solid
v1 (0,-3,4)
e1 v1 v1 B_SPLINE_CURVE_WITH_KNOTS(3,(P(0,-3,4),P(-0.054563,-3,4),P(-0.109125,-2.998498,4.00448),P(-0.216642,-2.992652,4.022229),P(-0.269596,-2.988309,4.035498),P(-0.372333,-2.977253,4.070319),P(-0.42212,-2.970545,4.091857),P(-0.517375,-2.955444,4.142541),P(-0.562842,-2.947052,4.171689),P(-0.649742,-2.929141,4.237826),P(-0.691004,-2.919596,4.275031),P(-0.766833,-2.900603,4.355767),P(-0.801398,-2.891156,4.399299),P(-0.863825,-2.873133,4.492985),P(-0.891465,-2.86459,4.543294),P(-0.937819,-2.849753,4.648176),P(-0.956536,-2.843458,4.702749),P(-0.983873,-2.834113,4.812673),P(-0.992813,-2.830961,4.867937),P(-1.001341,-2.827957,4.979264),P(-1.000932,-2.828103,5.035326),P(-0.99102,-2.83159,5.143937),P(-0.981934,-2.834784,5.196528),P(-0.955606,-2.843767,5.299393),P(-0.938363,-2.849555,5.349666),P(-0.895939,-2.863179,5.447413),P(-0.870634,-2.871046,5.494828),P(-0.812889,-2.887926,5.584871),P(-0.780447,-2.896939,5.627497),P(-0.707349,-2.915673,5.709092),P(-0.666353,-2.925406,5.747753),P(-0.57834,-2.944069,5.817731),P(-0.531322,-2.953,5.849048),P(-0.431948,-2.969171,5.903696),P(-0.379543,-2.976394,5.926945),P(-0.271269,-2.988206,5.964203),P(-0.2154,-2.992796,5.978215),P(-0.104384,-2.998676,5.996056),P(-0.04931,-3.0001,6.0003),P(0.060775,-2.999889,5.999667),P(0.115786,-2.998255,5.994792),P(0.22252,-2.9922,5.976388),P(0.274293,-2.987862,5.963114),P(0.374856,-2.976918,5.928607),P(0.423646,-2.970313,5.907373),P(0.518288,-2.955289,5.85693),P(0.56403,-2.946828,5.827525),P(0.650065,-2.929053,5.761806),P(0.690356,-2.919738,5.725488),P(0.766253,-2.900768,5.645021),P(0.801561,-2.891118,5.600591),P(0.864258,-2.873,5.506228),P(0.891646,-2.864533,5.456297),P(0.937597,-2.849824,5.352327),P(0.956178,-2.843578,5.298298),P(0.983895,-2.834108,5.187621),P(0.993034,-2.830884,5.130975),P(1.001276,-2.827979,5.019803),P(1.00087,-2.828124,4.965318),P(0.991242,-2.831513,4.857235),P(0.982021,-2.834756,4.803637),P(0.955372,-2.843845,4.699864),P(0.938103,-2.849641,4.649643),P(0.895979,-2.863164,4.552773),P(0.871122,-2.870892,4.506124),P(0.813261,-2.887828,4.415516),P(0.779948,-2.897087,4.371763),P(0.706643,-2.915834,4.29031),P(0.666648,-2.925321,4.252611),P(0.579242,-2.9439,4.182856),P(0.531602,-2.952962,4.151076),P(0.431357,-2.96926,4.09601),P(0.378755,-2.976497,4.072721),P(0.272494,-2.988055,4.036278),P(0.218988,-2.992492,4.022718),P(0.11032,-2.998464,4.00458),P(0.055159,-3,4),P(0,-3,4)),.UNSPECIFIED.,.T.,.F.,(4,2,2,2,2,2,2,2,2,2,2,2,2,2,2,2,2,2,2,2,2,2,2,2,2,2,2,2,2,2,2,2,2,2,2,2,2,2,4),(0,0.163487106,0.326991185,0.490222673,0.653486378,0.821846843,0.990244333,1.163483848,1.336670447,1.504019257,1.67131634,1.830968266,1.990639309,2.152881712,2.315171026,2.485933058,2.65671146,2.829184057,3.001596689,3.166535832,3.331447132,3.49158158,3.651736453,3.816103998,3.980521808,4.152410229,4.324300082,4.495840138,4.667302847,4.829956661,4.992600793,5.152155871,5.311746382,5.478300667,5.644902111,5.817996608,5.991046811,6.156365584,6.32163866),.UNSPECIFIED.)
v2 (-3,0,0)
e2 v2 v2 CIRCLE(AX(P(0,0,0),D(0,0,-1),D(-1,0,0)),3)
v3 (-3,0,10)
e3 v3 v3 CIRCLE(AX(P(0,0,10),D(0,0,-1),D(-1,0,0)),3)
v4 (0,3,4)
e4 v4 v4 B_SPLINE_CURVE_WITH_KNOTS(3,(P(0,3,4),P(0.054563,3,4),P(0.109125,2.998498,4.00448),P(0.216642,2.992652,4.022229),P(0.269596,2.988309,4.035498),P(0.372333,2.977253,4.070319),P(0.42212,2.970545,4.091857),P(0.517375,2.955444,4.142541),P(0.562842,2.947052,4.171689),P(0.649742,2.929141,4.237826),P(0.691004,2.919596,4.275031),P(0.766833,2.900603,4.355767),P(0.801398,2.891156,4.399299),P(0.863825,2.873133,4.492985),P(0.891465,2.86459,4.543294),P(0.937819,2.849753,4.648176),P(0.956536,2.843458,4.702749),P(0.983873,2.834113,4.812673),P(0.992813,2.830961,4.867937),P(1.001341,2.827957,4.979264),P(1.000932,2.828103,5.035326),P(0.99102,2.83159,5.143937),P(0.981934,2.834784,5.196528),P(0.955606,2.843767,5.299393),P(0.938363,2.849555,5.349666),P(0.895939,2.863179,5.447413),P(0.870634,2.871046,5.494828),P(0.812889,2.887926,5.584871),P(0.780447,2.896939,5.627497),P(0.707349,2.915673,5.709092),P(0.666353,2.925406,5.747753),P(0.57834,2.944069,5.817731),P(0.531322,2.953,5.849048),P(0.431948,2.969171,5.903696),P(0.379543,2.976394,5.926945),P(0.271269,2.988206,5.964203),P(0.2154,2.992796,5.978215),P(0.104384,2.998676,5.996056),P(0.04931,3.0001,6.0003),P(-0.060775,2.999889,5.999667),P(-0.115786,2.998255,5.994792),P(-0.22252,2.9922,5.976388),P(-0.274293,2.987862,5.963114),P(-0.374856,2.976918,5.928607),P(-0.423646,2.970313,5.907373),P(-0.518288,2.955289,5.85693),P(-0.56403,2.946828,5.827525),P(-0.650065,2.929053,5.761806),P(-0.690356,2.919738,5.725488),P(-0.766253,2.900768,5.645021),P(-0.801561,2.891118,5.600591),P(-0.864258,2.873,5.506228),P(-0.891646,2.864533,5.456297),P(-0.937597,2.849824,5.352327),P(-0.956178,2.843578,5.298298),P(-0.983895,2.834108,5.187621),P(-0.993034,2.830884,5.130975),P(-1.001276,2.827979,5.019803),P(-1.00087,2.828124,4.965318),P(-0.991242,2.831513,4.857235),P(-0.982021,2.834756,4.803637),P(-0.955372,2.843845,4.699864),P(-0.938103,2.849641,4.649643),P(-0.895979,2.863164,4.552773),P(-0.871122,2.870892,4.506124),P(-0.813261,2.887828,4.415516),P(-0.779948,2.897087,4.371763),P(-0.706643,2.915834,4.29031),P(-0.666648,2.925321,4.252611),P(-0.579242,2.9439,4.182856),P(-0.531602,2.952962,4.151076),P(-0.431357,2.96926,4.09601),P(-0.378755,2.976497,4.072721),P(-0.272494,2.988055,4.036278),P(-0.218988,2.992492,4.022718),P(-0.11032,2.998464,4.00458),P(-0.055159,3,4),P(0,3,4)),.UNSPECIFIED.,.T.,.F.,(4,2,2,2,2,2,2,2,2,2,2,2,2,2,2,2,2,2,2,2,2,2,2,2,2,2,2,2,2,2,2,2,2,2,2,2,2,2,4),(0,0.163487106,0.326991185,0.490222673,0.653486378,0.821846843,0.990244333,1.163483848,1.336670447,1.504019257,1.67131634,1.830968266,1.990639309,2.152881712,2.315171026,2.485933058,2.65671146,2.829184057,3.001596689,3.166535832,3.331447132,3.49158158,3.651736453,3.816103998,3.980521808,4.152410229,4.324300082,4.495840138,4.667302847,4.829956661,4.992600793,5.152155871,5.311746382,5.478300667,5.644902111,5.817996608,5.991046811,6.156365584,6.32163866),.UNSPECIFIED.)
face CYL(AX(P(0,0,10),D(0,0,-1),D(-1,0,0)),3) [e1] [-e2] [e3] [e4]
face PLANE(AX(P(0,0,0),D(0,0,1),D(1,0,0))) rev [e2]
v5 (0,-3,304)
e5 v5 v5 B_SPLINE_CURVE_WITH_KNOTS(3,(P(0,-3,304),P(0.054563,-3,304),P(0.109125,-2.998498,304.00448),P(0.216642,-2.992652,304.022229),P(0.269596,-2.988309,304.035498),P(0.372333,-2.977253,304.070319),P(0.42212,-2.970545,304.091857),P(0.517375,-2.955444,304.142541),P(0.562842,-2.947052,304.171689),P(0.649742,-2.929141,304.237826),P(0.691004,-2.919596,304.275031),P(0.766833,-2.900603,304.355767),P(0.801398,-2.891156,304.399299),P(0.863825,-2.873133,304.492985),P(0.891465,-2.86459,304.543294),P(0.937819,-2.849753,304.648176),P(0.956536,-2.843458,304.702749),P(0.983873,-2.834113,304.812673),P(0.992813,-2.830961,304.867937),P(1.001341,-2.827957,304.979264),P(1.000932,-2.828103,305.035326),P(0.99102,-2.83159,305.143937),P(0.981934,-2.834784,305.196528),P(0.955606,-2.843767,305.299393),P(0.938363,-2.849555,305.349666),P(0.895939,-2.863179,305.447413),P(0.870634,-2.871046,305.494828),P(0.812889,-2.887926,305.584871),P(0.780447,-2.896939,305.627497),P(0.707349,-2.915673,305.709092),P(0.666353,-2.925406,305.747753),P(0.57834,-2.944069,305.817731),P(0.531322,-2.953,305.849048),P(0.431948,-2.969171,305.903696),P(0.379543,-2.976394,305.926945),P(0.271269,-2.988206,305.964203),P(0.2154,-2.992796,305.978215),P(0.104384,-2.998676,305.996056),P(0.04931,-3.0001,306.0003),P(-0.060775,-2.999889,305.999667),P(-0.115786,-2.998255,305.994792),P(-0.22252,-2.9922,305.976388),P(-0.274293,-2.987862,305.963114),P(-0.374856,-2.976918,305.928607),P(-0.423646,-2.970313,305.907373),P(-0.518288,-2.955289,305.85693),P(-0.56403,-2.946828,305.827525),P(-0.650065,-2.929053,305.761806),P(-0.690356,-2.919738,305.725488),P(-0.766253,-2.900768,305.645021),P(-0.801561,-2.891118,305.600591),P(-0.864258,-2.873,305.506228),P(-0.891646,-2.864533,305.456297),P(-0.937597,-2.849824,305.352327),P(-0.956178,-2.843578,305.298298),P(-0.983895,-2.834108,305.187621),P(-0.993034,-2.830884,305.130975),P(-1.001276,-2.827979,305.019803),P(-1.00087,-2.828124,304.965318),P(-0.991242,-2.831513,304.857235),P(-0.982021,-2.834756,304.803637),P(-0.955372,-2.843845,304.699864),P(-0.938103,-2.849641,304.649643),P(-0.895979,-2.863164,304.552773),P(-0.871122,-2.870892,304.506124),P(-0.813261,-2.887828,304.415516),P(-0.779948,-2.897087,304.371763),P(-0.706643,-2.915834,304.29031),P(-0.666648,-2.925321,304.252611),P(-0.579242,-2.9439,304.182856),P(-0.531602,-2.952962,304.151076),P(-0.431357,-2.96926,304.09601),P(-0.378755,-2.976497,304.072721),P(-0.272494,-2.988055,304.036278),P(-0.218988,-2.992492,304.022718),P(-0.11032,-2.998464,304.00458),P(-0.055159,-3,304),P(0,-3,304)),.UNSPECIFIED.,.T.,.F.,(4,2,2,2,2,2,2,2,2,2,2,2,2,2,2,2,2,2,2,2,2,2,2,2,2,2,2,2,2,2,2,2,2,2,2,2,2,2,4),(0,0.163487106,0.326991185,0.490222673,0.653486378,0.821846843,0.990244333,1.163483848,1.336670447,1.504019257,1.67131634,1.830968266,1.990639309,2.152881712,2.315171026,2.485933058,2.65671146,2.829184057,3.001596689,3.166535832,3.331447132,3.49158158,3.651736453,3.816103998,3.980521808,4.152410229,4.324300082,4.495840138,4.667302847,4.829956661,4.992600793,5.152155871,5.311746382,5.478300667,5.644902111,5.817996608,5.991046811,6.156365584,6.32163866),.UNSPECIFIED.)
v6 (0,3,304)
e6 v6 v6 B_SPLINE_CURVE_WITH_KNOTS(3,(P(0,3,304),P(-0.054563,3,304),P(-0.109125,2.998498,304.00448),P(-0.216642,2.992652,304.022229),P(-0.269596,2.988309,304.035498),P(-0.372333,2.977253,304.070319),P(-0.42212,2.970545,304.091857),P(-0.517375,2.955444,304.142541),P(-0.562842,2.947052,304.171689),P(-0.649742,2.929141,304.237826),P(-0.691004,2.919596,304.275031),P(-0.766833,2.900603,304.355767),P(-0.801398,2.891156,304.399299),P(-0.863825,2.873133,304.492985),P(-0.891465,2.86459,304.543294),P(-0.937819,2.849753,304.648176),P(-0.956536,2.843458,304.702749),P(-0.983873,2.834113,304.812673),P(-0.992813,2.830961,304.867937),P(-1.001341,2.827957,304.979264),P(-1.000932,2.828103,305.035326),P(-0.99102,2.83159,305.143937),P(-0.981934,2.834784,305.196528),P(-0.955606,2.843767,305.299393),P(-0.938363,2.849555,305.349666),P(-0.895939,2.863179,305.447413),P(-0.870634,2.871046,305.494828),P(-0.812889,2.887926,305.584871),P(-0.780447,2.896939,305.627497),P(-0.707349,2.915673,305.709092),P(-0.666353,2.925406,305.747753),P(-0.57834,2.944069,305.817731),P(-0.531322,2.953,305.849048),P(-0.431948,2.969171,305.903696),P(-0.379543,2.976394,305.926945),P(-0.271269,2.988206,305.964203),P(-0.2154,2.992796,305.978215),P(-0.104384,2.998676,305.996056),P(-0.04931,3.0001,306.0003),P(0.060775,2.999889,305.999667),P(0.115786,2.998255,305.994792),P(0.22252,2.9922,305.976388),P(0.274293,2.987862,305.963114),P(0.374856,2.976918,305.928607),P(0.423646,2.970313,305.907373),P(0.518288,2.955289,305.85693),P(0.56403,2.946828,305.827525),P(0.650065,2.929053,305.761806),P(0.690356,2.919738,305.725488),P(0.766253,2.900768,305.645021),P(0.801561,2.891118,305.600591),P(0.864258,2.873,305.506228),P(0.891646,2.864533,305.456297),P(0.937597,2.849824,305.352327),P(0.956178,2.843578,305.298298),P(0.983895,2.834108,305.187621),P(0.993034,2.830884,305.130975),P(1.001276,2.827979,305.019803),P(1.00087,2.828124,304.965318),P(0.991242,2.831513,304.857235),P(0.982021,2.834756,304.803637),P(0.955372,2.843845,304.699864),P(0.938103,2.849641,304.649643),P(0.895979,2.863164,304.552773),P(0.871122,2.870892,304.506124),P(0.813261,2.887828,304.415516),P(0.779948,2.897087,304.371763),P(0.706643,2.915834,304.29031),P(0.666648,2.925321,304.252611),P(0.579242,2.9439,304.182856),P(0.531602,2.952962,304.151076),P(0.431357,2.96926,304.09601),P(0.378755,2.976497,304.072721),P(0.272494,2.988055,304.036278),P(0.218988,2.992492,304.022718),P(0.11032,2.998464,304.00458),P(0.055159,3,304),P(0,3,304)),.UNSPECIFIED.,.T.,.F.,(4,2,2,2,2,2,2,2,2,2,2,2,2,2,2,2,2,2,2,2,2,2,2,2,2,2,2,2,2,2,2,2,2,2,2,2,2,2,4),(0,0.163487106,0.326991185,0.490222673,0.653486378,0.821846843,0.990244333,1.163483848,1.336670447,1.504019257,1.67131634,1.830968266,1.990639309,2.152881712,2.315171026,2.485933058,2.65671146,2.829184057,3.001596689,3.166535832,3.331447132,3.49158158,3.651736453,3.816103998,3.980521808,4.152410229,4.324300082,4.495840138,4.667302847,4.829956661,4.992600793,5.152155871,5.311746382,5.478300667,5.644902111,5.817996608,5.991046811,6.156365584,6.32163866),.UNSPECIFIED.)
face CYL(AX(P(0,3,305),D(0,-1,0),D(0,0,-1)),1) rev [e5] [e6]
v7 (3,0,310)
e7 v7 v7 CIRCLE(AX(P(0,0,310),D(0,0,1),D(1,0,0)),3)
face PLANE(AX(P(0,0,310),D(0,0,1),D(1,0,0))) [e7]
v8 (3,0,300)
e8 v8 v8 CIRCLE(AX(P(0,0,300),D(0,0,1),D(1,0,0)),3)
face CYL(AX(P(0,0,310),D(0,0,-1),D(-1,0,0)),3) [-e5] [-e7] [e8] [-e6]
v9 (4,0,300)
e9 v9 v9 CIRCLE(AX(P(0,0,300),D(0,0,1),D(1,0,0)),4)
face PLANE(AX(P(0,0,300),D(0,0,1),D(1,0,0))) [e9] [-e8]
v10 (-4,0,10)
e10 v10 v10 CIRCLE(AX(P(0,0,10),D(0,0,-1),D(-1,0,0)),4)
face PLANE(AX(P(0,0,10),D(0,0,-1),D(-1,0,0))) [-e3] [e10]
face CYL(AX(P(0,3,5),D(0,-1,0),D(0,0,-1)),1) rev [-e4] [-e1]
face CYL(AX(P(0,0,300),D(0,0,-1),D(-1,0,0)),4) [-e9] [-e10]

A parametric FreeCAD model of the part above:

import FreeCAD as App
import Part
import Sketcher
from FreeCAD import Vector

doc = App.newDocument("Part")
body = doc.addObject("PartDesign::Body", "Body")

sketch1 = doc.addObject("Sketcher::SketchObject", "Sketch")
body.addObject(sketch1)
sketch1.AttachmentSupport = (doc.XY_Plane, [""])
sketch1.MapMode = "FlatFace"
sketch1.addGeometry(Part.Circle(Vector(0, 0, 0), Vector(0, 0, 1), 4), False)
sketch1.addConstraint([
    Sketcher.Constraint("Coincident", 0, 3, -1, 1),
    Sketcher.Constraint("Diameter", 0, 8.0),
])
pad1 = doc.addObject("PartDesign::Pad", "Pad")
body.addObject(pad1)
pad1.Profile = sketch1
pad1.Length = 300

sketch2 = doc.addObject("Sketcher::SketchObject", "Sketch001")
body.addObject(sketch2)
sketch2.AttachmentSupport = (doc.XY_Plane, [""])
sketch2.MapMode = "FlatFace"
sketch2.AttachmentOffset = App.Placement(Vector(0, 0, 300), App.Rotation())
sketch2.addGeometry(Part.Circle(Vector(0, 0, 0), Vector(0, 0, 1), 3), False)
sketch2.addConstraint([
    Sketcher.Constraint("Coincident", 0, 3, -1, 1),
    Sketcher.Constraint("Diameter", 0, 6.0),
])
pad2 = doc.addObject("PartDesign::Pad", "Pad001")
body.addObject(pad2)
pad2.Profile = sketch2
pad2.Length = 10

sketch3 = doc.addObject("Sketcher::SketchObject", "Sketch002")
body.addObject(sketch3)
sketch3.AttachmentSupport = (doc.XZ_Plane, [""])
sketch3.MapMode = "FlatFace"
sketch3.addGeometry(Part.Circle(Vector(0, 305, 0), Vector(0, 0, 1), 1), False)
sketch3.addConstraint([
    Sketcher.Constraint("PointOnObject", 0, 3, -2),
    Sketcher.Constraint("Diameter", 0, 2.0),
    Sketcher.Constraint("DistanceY", -1, 1, 0, 3, 305.0),
])
pocket1 = doc.addObject("PartDesign::Pocket", "Pocket")
body.addObject(pocket1)
pocket1.Profile = sketch3
pocket1.Length = 6
pocket1.Midplane = True

sketch4 = doc.addObject("Sketcher::SketchObject", "Sketch003")
body.addObject(sketch4)
sketch4.AttachmentSupport = (doc.XY_Plane, [""])
sketch4.MapMode = "FlatFace"
sketch4.addGeometry([
    Part.Circle(Vector(0, 0, 0), Vector(0, 0, 1), 4),
    Part.Circle(Vector(0, 0, 0), Vector(0, 0, 1), 3),
], False)
sketch4.addConstraint([
    Sketcher.Constraint("Coincident", 0, 3, -1, 1),
    Sketcher.Constraint("Coincident", 1, 3, -1, 1),
    Sketcher.Constraint("Diameter", 0, 8.0),
    Sketcher.Constraint("Diameter", 1, 6.0),
])
pocket2 = doc.addObject("PartDesign::Pocket", "Pocket001")
body.addObject(pocket2)
pocket2.Profile = sketch4
pocket2.Length = 10
pocket2.Reversed = True

sketch5 = doc.addObject("Sketcher::SketchObject", "Sketch004")
body.addObject(sketch5)
sketch5.AttachmentSupport = (doc.XZ_Plane, [""])
sketch5.MapMode = "FlatFace"
sketch5.addGeometry(Part.Circle(Vector(0, 5, 0), Vector(0, 0, 1), 1), False)
sketch5.addConstraint([
    Sketcher.Constraint("PointOnObject", 0, 3, -2),
    Sketcher.Constraint("Diameter", 0, 2.0),
    Sketcher.Constraint("DistanceY", -1, 1, 0, 3, 5.0),
])
pocket3 = doc.addObject("PartDesign::Pocket", "Pocket002")
body.addObject(pocket3)
pocket3.Profile = sketch5
pocket3.Length = 6
pocket3.Midplane = True

doc.recompute()
